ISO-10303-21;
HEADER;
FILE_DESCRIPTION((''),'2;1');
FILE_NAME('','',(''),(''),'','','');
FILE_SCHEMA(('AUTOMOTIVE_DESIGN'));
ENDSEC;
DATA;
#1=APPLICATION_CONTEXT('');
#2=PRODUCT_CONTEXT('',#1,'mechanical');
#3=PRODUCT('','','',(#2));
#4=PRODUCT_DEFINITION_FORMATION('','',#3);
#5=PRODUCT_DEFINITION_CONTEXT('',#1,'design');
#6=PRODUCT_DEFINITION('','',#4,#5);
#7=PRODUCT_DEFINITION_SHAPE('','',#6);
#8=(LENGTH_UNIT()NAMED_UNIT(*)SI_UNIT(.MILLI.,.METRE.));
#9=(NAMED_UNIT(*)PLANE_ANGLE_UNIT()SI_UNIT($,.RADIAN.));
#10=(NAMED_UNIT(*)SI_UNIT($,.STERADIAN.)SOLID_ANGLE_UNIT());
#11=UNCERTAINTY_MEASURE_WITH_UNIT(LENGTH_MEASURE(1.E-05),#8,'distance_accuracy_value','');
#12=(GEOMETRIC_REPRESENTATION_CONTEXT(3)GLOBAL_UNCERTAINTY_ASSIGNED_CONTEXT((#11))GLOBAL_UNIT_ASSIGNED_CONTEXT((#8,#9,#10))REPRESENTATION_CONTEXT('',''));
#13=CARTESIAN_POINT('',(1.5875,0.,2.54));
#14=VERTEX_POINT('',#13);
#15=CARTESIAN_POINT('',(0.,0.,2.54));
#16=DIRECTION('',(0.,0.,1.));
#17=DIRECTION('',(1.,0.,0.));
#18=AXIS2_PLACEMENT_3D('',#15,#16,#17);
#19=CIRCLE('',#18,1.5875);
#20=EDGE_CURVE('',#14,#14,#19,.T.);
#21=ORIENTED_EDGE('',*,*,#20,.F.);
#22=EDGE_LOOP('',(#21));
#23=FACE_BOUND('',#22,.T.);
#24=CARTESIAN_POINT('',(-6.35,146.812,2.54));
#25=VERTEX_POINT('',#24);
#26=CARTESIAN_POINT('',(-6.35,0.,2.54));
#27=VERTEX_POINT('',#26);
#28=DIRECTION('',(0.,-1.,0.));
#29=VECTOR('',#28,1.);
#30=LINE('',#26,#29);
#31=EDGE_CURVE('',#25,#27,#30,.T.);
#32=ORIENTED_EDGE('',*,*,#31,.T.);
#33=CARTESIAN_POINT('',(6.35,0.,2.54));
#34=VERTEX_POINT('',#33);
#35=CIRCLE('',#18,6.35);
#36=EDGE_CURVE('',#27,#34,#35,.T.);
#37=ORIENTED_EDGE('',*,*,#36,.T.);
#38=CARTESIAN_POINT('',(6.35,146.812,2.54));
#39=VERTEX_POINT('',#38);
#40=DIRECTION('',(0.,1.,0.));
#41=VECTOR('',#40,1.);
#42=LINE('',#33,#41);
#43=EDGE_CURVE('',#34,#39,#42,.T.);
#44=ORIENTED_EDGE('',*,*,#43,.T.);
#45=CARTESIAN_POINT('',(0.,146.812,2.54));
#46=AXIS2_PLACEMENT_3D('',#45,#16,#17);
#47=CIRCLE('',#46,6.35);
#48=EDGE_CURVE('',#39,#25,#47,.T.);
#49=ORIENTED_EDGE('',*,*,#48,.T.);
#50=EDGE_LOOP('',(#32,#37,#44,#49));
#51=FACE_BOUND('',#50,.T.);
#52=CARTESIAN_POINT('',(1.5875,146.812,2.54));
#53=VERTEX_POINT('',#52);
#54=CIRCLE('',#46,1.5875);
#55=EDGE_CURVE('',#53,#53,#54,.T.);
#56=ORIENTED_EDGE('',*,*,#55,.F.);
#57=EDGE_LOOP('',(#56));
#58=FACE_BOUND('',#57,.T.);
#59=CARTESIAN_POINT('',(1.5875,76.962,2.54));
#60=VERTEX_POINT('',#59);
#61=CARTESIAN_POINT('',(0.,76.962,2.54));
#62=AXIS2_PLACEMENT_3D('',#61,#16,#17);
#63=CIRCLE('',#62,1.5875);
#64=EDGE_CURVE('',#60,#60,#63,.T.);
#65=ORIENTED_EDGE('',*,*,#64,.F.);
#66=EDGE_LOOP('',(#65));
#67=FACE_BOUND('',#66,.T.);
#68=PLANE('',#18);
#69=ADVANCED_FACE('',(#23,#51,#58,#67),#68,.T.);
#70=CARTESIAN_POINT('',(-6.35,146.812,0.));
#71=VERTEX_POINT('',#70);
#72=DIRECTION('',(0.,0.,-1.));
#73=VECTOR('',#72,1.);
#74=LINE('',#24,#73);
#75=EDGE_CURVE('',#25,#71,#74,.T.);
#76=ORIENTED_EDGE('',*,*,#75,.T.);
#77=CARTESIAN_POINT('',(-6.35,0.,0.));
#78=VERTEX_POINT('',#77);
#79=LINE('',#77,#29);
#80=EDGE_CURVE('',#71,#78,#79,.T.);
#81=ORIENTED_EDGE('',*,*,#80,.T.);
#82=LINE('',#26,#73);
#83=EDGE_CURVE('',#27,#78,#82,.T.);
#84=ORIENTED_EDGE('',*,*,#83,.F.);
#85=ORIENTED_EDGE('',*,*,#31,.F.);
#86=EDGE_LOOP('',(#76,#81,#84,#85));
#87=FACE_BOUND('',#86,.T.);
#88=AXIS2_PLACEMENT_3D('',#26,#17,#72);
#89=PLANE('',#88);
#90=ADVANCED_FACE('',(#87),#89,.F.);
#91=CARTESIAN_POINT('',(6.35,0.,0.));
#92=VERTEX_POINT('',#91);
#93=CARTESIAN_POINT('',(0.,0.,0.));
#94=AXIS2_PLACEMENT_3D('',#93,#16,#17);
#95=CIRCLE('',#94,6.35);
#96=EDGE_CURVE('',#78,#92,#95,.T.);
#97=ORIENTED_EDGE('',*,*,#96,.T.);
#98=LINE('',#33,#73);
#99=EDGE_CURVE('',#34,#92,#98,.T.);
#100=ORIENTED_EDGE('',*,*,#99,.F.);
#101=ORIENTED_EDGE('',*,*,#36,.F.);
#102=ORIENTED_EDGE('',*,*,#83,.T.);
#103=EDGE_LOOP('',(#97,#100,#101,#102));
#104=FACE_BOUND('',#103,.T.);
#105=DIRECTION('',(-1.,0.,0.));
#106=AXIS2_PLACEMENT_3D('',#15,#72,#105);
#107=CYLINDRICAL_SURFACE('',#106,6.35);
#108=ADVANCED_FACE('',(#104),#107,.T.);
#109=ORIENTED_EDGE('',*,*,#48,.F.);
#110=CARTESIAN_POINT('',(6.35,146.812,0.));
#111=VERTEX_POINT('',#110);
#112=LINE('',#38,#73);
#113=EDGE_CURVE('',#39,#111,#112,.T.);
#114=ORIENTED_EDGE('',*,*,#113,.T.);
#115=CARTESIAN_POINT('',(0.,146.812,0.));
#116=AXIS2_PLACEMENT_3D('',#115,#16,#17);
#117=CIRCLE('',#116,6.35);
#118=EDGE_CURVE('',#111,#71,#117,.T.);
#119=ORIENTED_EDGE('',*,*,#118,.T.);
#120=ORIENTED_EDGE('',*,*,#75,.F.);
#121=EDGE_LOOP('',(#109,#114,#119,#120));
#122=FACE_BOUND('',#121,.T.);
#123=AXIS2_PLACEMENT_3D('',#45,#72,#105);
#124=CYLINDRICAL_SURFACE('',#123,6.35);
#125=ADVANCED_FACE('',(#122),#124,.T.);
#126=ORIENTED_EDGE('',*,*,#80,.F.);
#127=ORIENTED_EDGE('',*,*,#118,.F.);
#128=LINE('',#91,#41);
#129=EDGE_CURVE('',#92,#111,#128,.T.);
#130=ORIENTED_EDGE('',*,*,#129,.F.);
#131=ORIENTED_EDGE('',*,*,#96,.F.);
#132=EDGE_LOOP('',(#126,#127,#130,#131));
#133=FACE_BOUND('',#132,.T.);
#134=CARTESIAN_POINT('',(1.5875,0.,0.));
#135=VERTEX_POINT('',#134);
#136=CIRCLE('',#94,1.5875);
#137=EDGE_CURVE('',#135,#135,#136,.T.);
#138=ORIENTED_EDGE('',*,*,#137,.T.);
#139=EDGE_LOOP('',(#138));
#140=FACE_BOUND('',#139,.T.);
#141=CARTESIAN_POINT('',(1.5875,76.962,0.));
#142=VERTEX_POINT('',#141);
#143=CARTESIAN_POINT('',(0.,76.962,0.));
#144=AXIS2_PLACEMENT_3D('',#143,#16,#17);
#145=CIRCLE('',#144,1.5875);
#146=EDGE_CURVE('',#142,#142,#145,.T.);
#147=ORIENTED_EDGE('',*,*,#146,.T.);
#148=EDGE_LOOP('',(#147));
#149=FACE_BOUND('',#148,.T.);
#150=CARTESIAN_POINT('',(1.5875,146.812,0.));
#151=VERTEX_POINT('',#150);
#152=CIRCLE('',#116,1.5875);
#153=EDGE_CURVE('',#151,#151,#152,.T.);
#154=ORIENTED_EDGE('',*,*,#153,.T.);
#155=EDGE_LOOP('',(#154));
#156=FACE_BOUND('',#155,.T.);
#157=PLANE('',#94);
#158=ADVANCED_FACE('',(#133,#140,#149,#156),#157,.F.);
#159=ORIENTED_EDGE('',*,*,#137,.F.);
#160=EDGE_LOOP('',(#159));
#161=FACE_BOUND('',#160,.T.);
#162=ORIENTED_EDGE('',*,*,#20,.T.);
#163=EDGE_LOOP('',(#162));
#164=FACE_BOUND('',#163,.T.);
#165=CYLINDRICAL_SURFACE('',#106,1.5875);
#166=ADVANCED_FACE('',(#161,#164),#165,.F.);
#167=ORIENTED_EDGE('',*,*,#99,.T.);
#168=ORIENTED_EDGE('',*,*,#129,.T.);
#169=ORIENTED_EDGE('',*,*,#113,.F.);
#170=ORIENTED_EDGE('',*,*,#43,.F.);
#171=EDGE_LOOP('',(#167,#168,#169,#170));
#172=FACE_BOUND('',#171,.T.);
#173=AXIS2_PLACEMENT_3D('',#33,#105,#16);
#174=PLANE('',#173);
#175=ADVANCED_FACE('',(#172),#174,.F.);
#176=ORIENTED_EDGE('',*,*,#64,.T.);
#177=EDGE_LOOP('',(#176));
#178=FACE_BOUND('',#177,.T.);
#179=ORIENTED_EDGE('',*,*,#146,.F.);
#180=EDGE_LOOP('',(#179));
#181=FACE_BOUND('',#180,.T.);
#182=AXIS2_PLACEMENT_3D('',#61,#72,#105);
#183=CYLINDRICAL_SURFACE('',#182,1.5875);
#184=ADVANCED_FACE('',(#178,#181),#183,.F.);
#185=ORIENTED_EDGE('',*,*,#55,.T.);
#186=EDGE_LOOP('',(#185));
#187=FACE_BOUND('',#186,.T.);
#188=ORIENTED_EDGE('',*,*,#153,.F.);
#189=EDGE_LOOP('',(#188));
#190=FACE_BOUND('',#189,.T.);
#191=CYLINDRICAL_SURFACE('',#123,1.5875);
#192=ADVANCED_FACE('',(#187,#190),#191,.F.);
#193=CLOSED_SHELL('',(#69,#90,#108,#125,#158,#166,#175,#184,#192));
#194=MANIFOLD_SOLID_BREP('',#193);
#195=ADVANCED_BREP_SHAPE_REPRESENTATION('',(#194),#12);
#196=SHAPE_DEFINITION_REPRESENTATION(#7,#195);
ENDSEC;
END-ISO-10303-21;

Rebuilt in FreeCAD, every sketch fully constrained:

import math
import FreeCAD as App
import Part
import Sketcher

V = App.Vector
Q = App.Units.Quantity

doc = App.newDocument("Part")
body = doc.addObject("PartDesign::Body", "Body")

# Sketch on XY plane
sketch1 = body.newObject("Sketcher::SketchObject", "Sketch")
sketch1.AttachmentSupport = (doc.getObject("XY_Plane"), [""])
sketch1.MapMode = "FlatFace"
sketch1.addGeometry(Part.LineSegment(V(-6.35, 146.812, 0), V(-6.35, 0, 0)), False)
sketch1.addGeometry(Part.ArcOfCircle(Part.Circle(V(0, 0, 0), V(0, 0, 1), 6.35), math.radians(180), math.radians(360)), False)
sketch1.addGeometry(Part.LineSegment(V(6.35, 0, 0), V(6.35, 146.812, 0)), False)
sketch1.addGeometry(Part.ArcOfCircle(Part.Circle(V(0, 146.812, 0), V(0, 0, 1), 6.35), math.radians(0), math.radians(180)), False)
sketch1.addGeometry(Part.Circle(V(0, 0, 0), V(0, 0, 1), 1.5875), False)
sketch1.addGeometry(Part.Circle(V(0, 76.962, 0), V(0, 0, 1), 1.5875), False)
sketch1.addGeometry(Part.Circle(V(0, 146.812, 0), V(0, 0, 1), 1.5875), False)
sketch1.addConstraint(Sketcher.Constraint("Tangent", 0, 2, 1, 1))
sketch1.addConstraint(Sketcher.Constraint("Tangent", 1, 2, 2, 1))
sketch1.addConstraint(Sketcher.Constraint("Tangent", 2, 2, 3, 1))
sketch1.addConstraint(Sketcher.Constraint("Tangent", 3, 2, 0, 1))
sketch1.addConstraint(Sketcher.Constraint("Vertical", 0))
sketch1.addConstraint(Sketcher.Constraint("Vertical", 2))
sketch1.addConstraint(Sketcher.Constraint("Coincident", 1, 3, -1, 1))
sketch1.addConstraint(Sketcher.Constraint("Coincident", 4, 3, -1, 1))
sketch1.addConstraint(Sketcher.Constraint("Coincident", 6, 3, 3, 3))
sketch1.addConstraint(Sketcher.Constraint("Equal", 4, 5))
sketch1.addConstraint(Sketcher.Constraint("Equal", 5, 6))
sketch1.addConstraint(Sketcher.Constraint("PointOnObject", 5, 3, -2))
sketch1.addConstraint(Sketcher.Constraint("Radius", 1, Q("0.25 in")))
sketch1.addConstraint(Sketcher.Constraint("Diameter", 4, Q("0.125 in")))
sketch1.addConstraint(Sketcher.Constraint("DistanceY", 0, 2, 0, 1, Q("5.78 in")))
sketch1.addConstraint(Sketcher.Constraint("DistanceY", -1, 1, 5, 3, Q("3.03 in")))
pad1 = body.newObject("PartDesign::Pad", "Pad")
pad1.Profile = sketch1
pad1.Length = Q("0.1 in")

doc.recompute()
